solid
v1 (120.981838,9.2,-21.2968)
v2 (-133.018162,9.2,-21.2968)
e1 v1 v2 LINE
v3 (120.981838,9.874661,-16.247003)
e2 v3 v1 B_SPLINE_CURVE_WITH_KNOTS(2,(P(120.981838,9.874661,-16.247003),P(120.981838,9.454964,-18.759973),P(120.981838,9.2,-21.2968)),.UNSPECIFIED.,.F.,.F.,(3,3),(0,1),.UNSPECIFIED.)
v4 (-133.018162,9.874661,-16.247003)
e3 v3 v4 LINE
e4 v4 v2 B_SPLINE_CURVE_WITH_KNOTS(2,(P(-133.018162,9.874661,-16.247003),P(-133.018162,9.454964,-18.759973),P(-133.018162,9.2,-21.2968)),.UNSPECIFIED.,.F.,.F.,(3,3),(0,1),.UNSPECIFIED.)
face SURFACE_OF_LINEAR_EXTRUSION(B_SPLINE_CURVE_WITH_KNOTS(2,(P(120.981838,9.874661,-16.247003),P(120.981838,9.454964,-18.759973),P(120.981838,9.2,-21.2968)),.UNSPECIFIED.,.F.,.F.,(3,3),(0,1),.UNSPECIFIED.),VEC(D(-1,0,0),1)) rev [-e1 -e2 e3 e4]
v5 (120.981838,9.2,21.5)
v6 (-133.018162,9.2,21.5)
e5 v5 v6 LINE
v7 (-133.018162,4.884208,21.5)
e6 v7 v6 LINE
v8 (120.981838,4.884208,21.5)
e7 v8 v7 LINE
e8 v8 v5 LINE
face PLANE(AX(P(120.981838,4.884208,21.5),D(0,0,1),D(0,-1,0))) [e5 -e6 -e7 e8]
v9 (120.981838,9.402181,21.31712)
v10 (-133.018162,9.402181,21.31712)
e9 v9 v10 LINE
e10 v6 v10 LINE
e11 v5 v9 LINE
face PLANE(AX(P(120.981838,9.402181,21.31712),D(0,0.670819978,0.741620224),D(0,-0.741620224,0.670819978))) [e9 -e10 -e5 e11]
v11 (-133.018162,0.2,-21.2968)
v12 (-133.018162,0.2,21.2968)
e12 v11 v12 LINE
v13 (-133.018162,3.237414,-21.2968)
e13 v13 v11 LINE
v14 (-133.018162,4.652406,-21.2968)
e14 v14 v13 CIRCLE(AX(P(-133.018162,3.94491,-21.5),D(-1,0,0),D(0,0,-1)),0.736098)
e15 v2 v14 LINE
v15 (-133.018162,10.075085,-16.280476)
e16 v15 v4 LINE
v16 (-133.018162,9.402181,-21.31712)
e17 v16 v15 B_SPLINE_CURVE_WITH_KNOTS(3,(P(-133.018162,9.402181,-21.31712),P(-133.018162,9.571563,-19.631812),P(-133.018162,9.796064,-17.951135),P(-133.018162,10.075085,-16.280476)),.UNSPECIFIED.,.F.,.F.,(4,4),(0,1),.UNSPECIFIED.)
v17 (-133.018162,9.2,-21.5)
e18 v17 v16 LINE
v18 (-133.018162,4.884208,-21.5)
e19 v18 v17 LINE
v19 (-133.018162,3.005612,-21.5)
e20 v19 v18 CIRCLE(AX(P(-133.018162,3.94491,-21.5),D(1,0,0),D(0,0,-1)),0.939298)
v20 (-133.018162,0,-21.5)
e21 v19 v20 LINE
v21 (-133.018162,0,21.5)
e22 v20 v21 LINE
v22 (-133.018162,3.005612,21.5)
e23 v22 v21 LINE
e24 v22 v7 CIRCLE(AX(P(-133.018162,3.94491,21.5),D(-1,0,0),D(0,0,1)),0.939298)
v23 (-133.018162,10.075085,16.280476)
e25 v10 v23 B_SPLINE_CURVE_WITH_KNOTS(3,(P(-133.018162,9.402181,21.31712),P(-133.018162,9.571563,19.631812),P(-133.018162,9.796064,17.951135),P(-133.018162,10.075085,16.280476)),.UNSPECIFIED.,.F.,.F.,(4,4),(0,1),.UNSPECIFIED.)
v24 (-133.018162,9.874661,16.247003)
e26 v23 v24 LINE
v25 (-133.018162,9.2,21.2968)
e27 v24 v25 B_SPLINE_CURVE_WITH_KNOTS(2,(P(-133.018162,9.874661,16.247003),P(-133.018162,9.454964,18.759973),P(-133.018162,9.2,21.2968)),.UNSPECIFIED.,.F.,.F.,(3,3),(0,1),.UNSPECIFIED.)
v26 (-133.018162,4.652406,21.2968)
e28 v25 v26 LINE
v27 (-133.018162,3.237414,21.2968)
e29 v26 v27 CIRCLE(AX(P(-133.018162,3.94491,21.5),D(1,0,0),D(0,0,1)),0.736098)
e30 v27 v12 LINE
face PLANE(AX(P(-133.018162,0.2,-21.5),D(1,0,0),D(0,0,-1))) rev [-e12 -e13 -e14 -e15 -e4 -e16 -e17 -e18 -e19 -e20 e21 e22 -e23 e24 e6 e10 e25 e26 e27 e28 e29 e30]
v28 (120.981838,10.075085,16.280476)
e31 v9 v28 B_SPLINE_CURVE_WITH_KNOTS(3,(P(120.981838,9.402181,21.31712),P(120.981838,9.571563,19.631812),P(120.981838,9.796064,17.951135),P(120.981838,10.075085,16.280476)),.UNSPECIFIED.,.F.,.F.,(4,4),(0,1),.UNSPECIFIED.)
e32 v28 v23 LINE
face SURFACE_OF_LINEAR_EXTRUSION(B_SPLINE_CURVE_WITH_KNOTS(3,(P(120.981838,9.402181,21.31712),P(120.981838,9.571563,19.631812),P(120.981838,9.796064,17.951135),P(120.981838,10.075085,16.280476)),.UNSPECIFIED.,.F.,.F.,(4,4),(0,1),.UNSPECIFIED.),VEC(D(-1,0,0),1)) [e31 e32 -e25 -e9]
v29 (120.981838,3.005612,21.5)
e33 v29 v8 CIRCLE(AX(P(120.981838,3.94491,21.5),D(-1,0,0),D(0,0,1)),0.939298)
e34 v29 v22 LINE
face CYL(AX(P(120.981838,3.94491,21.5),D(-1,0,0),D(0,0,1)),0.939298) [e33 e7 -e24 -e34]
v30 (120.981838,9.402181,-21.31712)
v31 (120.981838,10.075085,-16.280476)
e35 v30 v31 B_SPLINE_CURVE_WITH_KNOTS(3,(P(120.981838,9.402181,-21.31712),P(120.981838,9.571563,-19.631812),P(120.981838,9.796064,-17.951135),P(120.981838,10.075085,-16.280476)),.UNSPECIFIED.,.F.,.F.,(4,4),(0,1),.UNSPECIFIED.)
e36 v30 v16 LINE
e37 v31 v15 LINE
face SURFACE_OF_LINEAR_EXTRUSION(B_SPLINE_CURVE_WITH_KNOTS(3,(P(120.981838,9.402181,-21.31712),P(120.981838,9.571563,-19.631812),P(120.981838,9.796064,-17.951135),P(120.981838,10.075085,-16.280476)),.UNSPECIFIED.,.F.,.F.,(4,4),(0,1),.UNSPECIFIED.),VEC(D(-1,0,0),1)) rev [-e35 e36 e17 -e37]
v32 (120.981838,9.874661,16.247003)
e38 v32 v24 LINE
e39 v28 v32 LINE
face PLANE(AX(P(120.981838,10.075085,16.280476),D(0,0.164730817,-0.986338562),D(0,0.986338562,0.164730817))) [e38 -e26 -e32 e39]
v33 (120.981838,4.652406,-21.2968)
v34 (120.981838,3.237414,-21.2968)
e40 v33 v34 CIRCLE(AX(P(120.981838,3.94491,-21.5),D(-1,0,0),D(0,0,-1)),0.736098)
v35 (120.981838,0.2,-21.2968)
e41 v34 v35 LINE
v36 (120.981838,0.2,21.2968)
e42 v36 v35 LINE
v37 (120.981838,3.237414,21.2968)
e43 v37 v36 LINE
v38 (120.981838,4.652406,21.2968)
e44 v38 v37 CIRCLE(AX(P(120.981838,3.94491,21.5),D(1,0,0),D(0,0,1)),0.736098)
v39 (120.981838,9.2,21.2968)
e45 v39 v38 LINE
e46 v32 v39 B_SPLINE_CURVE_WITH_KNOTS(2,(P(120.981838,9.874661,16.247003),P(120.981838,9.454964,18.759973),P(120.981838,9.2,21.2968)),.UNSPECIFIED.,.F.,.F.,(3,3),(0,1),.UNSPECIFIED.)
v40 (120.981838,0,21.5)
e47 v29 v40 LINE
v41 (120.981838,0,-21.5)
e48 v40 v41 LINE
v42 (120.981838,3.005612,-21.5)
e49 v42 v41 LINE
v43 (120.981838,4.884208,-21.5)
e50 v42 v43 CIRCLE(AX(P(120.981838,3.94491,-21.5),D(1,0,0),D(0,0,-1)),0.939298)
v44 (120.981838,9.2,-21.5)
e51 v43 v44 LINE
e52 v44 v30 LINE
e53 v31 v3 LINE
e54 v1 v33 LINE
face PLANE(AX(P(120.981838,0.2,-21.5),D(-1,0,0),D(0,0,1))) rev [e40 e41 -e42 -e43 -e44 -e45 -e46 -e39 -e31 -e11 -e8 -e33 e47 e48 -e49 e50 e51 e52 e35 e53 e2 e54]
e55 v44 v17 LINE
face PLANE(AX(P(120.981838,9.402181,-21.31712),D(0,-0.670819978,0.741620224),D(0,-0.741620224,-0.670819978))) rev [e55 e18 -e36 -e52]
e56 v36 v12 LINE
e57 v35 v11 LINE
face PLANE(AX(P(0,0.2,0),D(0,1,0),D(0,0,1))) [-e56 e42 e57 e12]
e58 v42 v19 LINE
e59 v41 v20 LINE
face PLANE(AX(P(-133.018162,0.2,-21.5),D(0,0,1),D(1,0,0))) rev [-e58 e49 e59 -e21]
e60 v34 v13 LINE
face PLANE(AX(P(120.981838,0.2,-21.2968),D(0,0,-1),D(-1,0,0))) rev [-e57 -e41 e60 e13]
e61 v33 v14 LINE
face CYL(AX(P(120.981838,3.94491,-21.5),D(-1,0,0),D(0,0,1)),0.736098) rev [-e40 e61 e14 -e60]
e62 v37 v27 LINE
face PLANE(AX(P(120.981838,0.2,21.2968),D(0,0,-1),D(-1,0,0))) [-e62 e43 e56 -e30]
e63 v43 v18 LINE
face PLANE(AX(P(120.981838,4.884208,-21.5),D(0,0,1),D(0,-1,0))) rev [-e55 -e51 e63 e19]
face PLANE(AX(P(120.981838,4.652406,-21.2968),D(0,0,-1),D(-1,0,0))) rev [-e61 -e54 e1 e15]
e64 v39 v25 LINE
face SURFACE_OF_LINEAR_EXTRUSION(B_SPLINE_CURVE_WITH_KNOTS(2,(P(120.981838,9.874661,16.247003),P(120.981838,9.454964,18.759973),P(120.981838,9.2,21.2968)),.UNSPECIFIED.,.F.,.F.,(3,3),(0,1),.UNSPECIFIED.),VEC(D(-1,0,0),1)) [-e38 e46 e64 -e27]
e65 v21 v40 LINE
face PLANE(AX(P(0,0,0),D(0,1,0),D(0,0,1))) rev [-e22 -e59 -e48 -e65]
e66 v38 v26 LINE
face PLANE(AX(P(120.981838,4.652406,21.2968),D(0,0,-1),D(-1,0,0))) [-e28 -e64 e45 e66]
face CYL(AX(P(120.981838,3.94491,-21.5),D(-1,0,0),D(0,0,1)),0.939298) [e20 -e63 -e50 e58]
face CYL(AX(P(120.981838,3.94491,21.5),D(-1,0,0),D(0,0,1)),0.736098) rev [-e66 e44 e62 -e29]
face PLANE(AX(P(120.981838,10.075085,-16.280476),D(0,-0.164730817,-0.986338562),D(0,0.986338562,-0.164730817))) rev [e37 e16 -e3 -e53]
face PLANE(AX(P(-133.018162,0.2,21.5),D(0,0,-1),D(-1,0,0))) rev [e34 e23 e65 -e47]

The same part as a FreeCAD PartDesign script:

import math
import FreeCAD as App
import Part
import Sketcher
from FreeCAD import Vector
Q = App.Units.Quantity


def add_polygon(sketch, points):
    """Adds a closed chain of lines whose ends are joined by coincident constraints."""
    first, n = sketch.GeometryCount, len(points)
    for a, b in zip(points, points[1:] + points[:1]):
        sketch.addGeometry(Part.LineSegment(App.Vector(*a, 0), App.Vector(*b, 0)), False)
    for i in range(n):
        sketch.addConstraint(Sketcher.Constraint("Coincident", first + i, 2, first + (i + 1) % n, 1))

doc = App.newDocument("Part")
params = doc.addObject("Spreadsheet::Sheet", "Params")
for row, (alias, value) in enumerate([
    ("sketch1_width", "254 mm"),
    ("sketch1_height", "43 mm"),
    ("pad1_length", "0.2 mm"),
    ("pad2_length", "254 mm"),
], start=1):
    params.set(f"A{row}", alias)
    params.set(f"B{row}", "=" + value)
    params.setAlias(f"B{row}", alias)

body = doc.addObject("PartDesign::Body", "Body")

sketch1 = body.newObject("Sketcher::SketchObject", "Sketch")
sketch1.AttachmentSupport = (doc.getObject("XZ_Plane"), [""])
sketch1.MapMode = "FlatFace"
add_polygon(sketch1, [(-133, -22), (-133, 22), (121, 22), (121, -22)])
sketch1.addConstraint([
    Sketcher.Constraint("Vertical", 0),
    Sketcher.Constraint("Horizontal", 1),
    Sketcher.Constraint("Vertical", 2),
    Sketcher.Constraint("Horizontal", 3),
    Sketcher.Constraint("DistanceX", 1, 1, 1, 2, Q("254 mm")),
    Sketcher.Constraint("DistanceY", 0, 1, 0, 2, Q("43 mm")),
    Sketcher.Constraint("DistanceY", -1, 1, 0, 2, Q("21.5 mm")),
    Sketcher.Constraint("DistanceX", 0, 2, -1, 1, Q("133.018162 mm")),
])
sketch1.setExpression("Constraints[8]", "Params.sketch1_width")
sketch1.setExpression("Constraints[9]", "Params.sketch1_height")
pad1 = body.newObject("PartDesign::Pad", "Pad")
pad1.Profile = sketch1
pad1.setExpression("Length", "Params.pad1_length")
pad1.Reversed = True

sketch2 = body.newObject("Sketcher::SketchObject", "Sketch001")
sketch2.AttachmentSupport = (doc.getObject("YZ_Plane"), [""])
sketch2.MapMode = "FlatFace"
sketch2.AttachmentOffset = App.Placement(Vector(0, 0, -133.018162), App.Rotation())
sketch2.addGeometry([
    Part.LineSegment(Vector(0.2, -21.5, 0), Vector(3.005612, -21.5, 0)),
    Part.ArcOfCircle(Part.Circle(Vector(3.94491, -21.5, 0), Vector(0, 0, 1), 0.939298), math.radians(180), math.radians(360)),
    Part.LineSegment(Vector(4.884208, -21.5, 0), Vector(9.2, -21.5, 0)),
    Part.LineSegment(Vector(9.2, -21.5, 0), Vector(9.402181, -21.31712, 0)),
    Part.BSplineCurve([Vector(9.402181, -21.31712, 0), Vector(9.571563, -19.631812, 0), Vector(9.796064, -17.951135, 0), Vector(10.075085, -16.280476, 0)], [4, 4], [0, 1], False, 3, [1, 1, 1, 1], False),
    Part.LineSegment(Vector(10.075085, -16.280476, 0), Vector(9.874661, -16.247003, 0)),
    Part.BSplineCurve([Vector(9.2, -21.2968, 0), Vector(9.454964, -18.759973, 0), Vector(9.874661, -16.247003, 0)], [3, 3], [0, 1], False, 2, [1, 1, 1], False),
    Part.LineSegment(Vector(9.2, -21.2968, 0), Vector(4.652406, -21.2968, 0)),
    Part.ArcOfCircle(Part.Circle(Vector(3.94491, -21.5, 0), Vector(0, 0, 1), 0.736098), math.radians(163.975392), math.radians(376.024608)),
    Part.LineSegment(Vector(3.237414, -21.2968, 0), Vector(0.2, -21.2968, 0)),
    Part.LineSegment(Vector(0.2, -21.2968, 0), Vector(0.2, -21.5, 0)),
], False)
sketch2.addConstraint([
    Sketcher.Constraint("Block", 4),
    Sketcher.Constraint("Block", 6),
    Sketcher.Constraint("Coincident", 0, 2, 1, 1),
    Sketcher.Constraint("Coincident", 1, 2, 2, 1),
    Sketcher.Constraint("Coincident", 2, 2, 3, 1),
    Sketcher.Constraint("Coincident", 3, 2, 4, 1),
    Sketcher.Constraint("Coincident", 4, 2, 5, 1),
    Sketcher.Constraint("Coincident", 5, 2, 6, 2),
    Sketcher.Constraint("Coincident", 6, 1, 7, 1),
    Sketcher.Constraint("Coincident", 7, 2, 8, 2),
    Sketcher.Constraint("Coincident", 8, 1, 9, 1),
    Sketcher.Constraint("Coincident", 9, 2, 10, 1),
    Sketcher.Constraint("Coincident", 10, 2, 0, 1),
    Sketcher.Constraint("Horizontal", 0),
    Sketcher.Constraint("Horizontal", 2),
    Sketcher.Constraint("Horizontal", 7),
    Sketcher.Constraint("Horizontal", 9),
    Sketcher.Constraint("Vertical", 10),
    Sketcher.Constraint("Coincident", 8, 3, 1, 3),
    Sketcher.Constraint("Horizontal", 8, 3, 0, 2),
    Sketcher.Constraint("Horizontal", 0, 2, 1, 2),
    Sketcher.Constraint("Horizontal", 7, 2, 8, 1),
    Sketcher.Constraint("DistanceY", 1, 3, -1, 1, Q("21.5 mm")),
    Sketcher.Constraint("DistanceX", -1, 1, 2, 2, Q("9.2 mm")),
    Sketcher.Constraint("DistanceX", -1, 1, 9, 2, Q("0.2 mm")),
    Sketcher.Constraint("Radius", 1, Q("0.939298 mm")),
    Sketcher.Constraint("Radius", 8, Q("0.736098 mm")),
    Sketcher.Constraint("DistanceX", 0, 1, 0, 2, Q("2.805612 mm")),
])
pad2 = body.newObject("PartDesign::Pad", "Pad001")
pad2.Profile = sketch2
pad2.setExpression("Length", "Params.pad2_length")
doc.recompute()

mirrored = body.newObject("PartDesign::Mirrored", "Mirrored")
mirrored.Originals = [pad2]
mirrored.MirrorPlane = (doc.getObject("XY_Plane"), [""])
body.Tip = mirrored

doc.recompute()
